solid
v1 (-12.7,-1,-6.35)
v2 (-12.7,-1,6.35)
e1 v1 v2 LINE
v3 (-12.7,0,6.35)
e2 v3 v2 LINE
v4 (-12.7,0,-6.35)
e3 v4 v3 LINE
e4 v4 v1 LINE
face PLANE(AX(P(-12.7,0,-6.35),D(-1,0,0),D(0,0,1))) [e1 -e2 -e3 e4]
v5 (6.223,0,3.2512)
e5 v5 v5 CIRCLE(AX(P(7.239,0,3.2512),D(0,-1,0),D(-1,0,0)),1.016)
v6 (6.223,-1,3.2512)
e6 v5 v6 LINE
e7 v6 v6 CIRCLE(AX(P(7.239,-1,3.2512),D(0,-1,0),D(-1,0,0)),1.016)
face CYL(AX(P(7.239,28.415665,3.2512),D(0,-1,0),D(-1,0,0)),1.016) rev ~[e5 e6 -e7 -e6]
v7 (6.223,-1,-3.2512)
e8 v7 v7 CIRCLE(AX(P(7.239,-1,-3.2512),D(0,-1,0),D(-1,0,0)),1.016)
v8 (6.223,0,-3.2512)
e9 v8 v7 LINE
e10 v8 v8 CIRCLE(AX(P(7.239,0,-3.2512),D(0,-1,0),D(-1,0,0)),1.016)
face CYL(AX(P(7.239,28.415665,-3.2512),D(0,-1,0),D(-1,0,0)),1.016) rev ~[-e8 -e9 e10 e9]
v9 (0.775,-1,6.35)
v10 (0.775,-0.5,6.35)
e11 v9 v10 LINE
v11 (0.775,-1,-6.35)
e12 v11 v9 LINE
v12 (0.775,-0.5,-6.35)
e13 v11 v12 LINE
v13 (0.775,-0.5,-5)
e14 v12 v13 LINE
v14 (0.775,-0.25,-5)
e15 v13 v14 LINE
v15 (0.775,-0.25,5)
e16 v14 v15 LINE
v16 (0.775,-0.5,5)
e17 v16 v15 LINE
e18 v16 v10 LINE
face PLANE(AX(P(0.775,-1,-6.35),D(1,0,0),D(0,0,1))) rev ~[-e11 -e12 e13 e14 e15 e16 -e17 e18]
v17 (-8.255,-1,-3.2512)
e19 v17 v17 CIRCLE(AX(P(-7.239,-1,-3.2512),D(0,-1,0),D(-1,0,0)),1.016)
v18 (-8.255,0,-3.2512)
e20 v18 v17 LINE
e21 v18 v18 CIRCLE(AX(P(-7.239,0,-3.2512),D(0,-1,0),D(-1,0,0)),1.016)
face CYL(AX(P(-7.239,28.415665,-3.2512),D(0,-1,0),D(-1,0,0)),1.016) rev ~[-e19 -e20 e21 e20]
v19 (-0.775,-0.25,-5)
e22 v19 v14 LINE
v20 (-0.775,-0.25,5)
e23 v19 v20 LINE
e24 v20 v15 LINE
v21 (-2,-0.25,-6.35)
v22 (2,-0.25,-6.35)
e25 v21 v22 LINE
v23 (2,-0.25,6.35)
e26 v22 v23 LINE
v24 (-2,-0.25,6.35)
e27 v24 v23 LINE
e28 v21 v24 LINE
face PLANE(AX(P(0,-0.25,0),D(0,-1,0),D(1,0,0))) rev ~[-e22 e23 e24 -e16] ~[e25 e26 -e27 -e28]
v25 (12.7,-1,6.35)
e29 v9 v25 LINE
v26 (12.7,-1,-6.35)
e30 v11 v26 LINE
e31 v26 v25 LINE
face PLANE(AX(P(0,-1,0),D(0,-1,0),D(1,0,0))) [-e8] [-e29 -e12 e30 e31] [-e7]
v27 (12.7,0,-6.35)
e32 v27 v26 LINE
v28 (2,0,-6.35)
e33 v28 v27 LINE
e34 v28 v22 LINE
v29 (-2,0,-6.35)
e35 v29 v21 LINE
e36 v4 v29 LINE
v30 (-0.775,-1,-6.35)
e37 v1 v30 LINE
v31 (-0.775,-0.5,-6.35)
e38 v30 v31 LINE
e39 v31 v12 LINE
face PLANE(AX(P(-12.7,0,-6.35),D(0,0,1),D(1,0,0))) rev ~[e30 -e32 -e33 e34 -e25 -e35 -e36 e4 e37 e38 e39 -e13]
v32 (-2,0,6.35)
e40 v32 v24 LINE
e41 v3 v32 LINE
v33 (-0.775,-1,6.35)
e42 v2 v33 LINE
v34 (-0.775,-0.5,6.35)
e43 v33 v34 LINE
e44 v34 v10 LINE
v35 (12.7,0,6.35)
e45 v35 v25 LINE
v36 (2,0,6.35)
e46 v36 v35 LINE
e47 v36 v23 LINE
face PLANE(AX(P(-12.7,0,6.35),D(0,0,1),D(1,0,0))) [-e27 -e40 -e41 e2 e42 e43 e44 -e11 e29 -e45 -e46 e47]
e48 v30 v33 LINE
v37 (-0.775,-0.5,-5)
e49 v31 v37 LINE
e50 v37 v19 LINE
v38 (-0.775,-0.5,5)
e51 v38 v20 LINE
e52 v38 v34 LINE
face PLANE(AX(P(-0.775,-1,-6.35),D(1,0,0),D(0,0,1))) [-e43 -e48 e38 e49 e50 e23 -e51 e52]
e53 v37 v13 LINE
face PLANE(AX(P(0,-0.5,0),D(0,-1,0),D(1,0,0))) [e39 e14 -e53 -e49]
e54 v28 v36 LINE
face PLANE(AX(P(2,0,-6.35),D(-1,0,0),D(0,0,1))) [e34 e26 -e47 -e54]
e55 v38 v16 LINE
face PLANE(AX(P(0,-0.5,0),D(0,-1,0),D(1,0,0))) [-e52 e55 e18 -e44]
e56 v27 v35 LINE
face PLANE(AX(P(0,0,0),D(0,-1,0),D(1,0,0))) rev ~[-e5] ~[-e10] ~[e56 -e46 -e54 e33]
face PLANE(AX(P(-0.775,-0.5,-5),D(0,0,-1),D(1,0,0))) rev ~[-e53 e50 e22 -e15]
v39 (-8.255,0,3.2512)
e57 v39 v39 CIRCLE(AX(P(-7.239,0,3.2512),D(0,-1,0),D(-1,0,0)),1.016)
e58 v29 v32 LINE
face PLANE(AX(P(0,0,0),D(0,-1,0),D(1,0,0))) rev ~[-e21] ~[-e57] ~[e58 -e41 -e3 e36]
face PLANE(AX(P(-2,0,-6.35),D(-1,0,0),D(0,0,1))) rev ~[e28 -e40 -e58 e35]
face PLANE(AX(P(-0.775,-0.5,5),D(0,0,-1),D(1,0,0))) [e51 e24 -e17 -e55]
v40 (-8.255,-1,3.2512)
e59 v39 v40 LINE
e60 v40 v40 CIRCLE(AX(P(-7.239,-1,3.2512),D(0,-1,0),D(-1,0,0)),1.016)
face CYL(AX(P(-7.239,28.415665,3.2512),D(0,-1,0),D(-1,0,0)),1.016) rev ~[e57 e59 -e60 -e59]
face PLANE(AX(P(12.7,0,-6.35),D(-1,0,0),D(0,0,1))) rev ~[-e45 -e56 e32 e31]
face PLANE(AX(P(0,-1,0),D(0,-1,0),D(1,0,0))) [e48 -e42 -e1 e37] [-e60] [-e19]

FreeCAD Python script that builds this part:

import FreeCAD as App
import Part
import Sketcher

V = App.Vector


def add_polygon(sketch, points):
    """Adds a closed chain of lines whose ends are joined by coincident constraints."""
    first, n = sketch.GeometryCount, len(points)
    for a, b in zip(points, points[1:] + points[:1]):
        sketch.addGeometry(Part.LineSegment(App.Vector(*a, 0), App.Vector(*b, 0)), False)
    for i in range(n):
        sketch.addConstraint(Sketcher.Constraint("Coincident", first + i, 2, first + (i + 1) % n, 1))

doc = App.newDocument("Part")
body = doc.addObject("PartDesign::Body", "Body")

sketch1 = body.newObject("Sketcher::SketchObject", "Sketch")
sketch1.AttachmentSupport = (doc.getObject("XZ_Plane"), [""])
sketch1.MapMode = "FlatFace"
add_polygon(sketch1, [(-12.7, 6.35), (-12.7, -6.35), (12.7, -6.35), (12.7, 6.35)])
sketch1.addConstraint(Sketcher.Constraint("Vertical", 0))
sketch1.addConstraint(Sketcher.Constraint("Horizontal", 1))
sketch1.addConstraint(Sketcher.Constraint("Vertical", 2))
sketch1.addConstraint(Sketcher.Constraint("Horizontal", 3))
sketch1.addConstraint(Sketcher.Constraint("Symmetric", 0, 2, 2, 2, -1, 1))
sketch1.addConstraint(Sketcher.Constraint("DistanceX", 1, 1, 1, 2, 25.4))
sketch1.addConstraint(Sketcher.Constraint("DistanceY", 0, 2, 0, 1, 12.7))
pad1 = body.newObject("PartDesign::Pad", "Pad")
pad1.Profile = sketch1
pad1.Length = 1

sketch2 = body.newObject("Sketcher::SketchObject", "Sketch001")
sketch2.AttachmentSupport = (doc.getObject("XZ_Plane"), [""])
sketch2.MapMode = "FlatFace"
sketch2.addGeometry(Part.Circle(V(-7.239, -3.2512, 0), V(0, 0, 1), 1.016), False)
sketch2.addGeometry(Part.Circle(V(7.239, -3.2512, 0), V(0, 0, 1), 1.016), False)
sketch2.addGeometry(Part.Circle(V(7.239, 3.2512, 0), V(0, 0, 1), 1.016), False)
sketch2.addGeometry(Part.Circle(V(-7.239, 3.2512, 0), V(0, 0, 1), 1.016), False)
sketch2.addConstraint(Sketcher.Constraint("Equal", 0, 1))
sketch2.addConstraint(Sketcher.Constraint("Equal", 1, 2))
sketch2.addConstraint(Sketcher.Constraint("Equal", 2, 3))
sketch2.addConstraint(Sketcher.Constraint("Symmetric", 0, 3, 2, 3, -1, 1))
sketch2.addConstraint(Sketcher.Constraint("Symmetric", 1, 3, 3, 3, -1, 1))
sketch2.addConstraint(Sketcher.Constraint("Symmetric", 0, 3, 1, 3, -2))
sketch2.addConstraint(Sketcher.Constraint("Diameter", 0, 2.032))
sketch2.addConstraint(Sketcher.Constraint("DistanceX", 0, 3, -1, 1, 7.239))
sketch2.addConstraint(Sketcher.Constraint("DistanceY", 0, 3, -1, 1, 3.2512))
doc.recompute()
hole = body.newObject("PartDesign::Hole", "Hole")
hole.Profile = sketch2
hole.ThreadType = "None"
hole.Diameter = 2.032
hole.DepthType = "ThroughAll"
hole.Reversed = True

sketch3 = body.newObject("Sketcher::SketchObject", "Sketch002")
sketch3.AttachmentSupport = (doc.getObject("XZ_Plane"), [""])
sketch3.MapMode = "FlatFace"
add_polygon(sketch3, [(-2, 6.35), (-2, -6.35), (2, -6.35), (2, 6.35)])
sketch3.addConstraint(Sketcher.Constraint("Vertical", 0))
sketch3.addConstraint(Sketcher.Constraint("Horizontal", 1))
sketch3.addConstraint(Sketcher.Constraint("Vertical", 2))
sketch3.addConstraint(Sketcher.Constraint("Horizontal", 3))
sketch3.addConstraint(Sketcher.Constraint("Symmetric", 0, 2, 2, 2, -1, 1))
sketch3.addConstraint(Sketcher.Constraint("DistanceX", 1, 1, 1, 2, 4.0))
sketch3.addConstraint(Sketcher.Constraint("DistanceY", 0, 2, 0, 1, 12.7))
pocket1 = body.newObject("PartDesign::Pocket", "Pocket")
pocket1.Profile = sketch3
pocket1.Length = 0.25
pocket1.Reversed = True

sketch4 = body.newObject("Sketcher::SketchObject", "Sketch003")
sketch4.AttachmentSupport = (doc.getObject("XZ_Plane"), [""])
sketch4.MapMode = "FlatFace"
sketch4.AttachmentOffset = App.Placement(V(0, 0, 1), App.Rotation())
add_polygon(sketch4, [(-0.775, 6.35), (-0.775, -6.35), (0.775, -6.35), (0.775, 6.35)])
sketch4.addConstraint(Sketcher.Constraint("Vertical", 0))
sketch4.addConstraint(Sketcher.Constraint("Horizontal", 1))
sketch4.addConstraint(Sketcher.Constraint("Vertical", 2))
sketch4.addConstraint(Sketcher.Constraint("Horizontal", 3))
sketch4.addConstraint(Sketcher.Constraint("Symmetric", 0, 2, 2, 2, -1, 1))
sketch4.addConstraint(Sketcher.Constraint("DistanceY", 0, 2, 0, 1, 12.7))
sketch4.addConstraint(Sketcher.Constraint("DistanceX", 1, 1, 1, 2, 1.55))
pocket2 = body.newObject("PartDesign::Pocket", "Pocket001")
pocket2.Profile = sketch4
pocket2.Length = 0.5

sketch5 = body.newObject("Sketcher::SketchObject", "Sketch004")
sketch5.AttachmentSupport = (doc.getObject("XZ_Plane"), [""])
sketch5.MapMode = "FlatFace"
sketch5.AttachmentOffset = App.Placement(V(0, 0, 0.5), App.Rotation())
add_polygon(sketch5, [(-0.775, 5), (-0.775, -5), (0.775, -5), (0.775, 5)])
sketch5.addConstraint(Sketcher.Constraint("Vertical", 0))
sketch5.addConstraint(Sketcher.Constraint("Horizontal", 1))
sketch5.addConstraint(Sketcher.Constraint("Vertical", 2))
sketch5.addConstraint(Sketcher.Constraint("Horizontal", 3))
sketch5.addConstraint(Sketcher.Constraint("Symmetric", 0, 2, 2, 2, -1, 1))
sketch5.addConstraint(Sketcher.Constraint("DistanceY", 0, 2, 0, 1, 10.0))
sketch5.addConstraint(Sketcher.Constraint("DistanceX", 1, 1, 1, 2, 1.55))
pocket3 = body.newObject("PartDesign::Pocket", "Pocket002")
pocket3.Profile = sketch5
pocket3.Length = 0.25

doc.recompute()
